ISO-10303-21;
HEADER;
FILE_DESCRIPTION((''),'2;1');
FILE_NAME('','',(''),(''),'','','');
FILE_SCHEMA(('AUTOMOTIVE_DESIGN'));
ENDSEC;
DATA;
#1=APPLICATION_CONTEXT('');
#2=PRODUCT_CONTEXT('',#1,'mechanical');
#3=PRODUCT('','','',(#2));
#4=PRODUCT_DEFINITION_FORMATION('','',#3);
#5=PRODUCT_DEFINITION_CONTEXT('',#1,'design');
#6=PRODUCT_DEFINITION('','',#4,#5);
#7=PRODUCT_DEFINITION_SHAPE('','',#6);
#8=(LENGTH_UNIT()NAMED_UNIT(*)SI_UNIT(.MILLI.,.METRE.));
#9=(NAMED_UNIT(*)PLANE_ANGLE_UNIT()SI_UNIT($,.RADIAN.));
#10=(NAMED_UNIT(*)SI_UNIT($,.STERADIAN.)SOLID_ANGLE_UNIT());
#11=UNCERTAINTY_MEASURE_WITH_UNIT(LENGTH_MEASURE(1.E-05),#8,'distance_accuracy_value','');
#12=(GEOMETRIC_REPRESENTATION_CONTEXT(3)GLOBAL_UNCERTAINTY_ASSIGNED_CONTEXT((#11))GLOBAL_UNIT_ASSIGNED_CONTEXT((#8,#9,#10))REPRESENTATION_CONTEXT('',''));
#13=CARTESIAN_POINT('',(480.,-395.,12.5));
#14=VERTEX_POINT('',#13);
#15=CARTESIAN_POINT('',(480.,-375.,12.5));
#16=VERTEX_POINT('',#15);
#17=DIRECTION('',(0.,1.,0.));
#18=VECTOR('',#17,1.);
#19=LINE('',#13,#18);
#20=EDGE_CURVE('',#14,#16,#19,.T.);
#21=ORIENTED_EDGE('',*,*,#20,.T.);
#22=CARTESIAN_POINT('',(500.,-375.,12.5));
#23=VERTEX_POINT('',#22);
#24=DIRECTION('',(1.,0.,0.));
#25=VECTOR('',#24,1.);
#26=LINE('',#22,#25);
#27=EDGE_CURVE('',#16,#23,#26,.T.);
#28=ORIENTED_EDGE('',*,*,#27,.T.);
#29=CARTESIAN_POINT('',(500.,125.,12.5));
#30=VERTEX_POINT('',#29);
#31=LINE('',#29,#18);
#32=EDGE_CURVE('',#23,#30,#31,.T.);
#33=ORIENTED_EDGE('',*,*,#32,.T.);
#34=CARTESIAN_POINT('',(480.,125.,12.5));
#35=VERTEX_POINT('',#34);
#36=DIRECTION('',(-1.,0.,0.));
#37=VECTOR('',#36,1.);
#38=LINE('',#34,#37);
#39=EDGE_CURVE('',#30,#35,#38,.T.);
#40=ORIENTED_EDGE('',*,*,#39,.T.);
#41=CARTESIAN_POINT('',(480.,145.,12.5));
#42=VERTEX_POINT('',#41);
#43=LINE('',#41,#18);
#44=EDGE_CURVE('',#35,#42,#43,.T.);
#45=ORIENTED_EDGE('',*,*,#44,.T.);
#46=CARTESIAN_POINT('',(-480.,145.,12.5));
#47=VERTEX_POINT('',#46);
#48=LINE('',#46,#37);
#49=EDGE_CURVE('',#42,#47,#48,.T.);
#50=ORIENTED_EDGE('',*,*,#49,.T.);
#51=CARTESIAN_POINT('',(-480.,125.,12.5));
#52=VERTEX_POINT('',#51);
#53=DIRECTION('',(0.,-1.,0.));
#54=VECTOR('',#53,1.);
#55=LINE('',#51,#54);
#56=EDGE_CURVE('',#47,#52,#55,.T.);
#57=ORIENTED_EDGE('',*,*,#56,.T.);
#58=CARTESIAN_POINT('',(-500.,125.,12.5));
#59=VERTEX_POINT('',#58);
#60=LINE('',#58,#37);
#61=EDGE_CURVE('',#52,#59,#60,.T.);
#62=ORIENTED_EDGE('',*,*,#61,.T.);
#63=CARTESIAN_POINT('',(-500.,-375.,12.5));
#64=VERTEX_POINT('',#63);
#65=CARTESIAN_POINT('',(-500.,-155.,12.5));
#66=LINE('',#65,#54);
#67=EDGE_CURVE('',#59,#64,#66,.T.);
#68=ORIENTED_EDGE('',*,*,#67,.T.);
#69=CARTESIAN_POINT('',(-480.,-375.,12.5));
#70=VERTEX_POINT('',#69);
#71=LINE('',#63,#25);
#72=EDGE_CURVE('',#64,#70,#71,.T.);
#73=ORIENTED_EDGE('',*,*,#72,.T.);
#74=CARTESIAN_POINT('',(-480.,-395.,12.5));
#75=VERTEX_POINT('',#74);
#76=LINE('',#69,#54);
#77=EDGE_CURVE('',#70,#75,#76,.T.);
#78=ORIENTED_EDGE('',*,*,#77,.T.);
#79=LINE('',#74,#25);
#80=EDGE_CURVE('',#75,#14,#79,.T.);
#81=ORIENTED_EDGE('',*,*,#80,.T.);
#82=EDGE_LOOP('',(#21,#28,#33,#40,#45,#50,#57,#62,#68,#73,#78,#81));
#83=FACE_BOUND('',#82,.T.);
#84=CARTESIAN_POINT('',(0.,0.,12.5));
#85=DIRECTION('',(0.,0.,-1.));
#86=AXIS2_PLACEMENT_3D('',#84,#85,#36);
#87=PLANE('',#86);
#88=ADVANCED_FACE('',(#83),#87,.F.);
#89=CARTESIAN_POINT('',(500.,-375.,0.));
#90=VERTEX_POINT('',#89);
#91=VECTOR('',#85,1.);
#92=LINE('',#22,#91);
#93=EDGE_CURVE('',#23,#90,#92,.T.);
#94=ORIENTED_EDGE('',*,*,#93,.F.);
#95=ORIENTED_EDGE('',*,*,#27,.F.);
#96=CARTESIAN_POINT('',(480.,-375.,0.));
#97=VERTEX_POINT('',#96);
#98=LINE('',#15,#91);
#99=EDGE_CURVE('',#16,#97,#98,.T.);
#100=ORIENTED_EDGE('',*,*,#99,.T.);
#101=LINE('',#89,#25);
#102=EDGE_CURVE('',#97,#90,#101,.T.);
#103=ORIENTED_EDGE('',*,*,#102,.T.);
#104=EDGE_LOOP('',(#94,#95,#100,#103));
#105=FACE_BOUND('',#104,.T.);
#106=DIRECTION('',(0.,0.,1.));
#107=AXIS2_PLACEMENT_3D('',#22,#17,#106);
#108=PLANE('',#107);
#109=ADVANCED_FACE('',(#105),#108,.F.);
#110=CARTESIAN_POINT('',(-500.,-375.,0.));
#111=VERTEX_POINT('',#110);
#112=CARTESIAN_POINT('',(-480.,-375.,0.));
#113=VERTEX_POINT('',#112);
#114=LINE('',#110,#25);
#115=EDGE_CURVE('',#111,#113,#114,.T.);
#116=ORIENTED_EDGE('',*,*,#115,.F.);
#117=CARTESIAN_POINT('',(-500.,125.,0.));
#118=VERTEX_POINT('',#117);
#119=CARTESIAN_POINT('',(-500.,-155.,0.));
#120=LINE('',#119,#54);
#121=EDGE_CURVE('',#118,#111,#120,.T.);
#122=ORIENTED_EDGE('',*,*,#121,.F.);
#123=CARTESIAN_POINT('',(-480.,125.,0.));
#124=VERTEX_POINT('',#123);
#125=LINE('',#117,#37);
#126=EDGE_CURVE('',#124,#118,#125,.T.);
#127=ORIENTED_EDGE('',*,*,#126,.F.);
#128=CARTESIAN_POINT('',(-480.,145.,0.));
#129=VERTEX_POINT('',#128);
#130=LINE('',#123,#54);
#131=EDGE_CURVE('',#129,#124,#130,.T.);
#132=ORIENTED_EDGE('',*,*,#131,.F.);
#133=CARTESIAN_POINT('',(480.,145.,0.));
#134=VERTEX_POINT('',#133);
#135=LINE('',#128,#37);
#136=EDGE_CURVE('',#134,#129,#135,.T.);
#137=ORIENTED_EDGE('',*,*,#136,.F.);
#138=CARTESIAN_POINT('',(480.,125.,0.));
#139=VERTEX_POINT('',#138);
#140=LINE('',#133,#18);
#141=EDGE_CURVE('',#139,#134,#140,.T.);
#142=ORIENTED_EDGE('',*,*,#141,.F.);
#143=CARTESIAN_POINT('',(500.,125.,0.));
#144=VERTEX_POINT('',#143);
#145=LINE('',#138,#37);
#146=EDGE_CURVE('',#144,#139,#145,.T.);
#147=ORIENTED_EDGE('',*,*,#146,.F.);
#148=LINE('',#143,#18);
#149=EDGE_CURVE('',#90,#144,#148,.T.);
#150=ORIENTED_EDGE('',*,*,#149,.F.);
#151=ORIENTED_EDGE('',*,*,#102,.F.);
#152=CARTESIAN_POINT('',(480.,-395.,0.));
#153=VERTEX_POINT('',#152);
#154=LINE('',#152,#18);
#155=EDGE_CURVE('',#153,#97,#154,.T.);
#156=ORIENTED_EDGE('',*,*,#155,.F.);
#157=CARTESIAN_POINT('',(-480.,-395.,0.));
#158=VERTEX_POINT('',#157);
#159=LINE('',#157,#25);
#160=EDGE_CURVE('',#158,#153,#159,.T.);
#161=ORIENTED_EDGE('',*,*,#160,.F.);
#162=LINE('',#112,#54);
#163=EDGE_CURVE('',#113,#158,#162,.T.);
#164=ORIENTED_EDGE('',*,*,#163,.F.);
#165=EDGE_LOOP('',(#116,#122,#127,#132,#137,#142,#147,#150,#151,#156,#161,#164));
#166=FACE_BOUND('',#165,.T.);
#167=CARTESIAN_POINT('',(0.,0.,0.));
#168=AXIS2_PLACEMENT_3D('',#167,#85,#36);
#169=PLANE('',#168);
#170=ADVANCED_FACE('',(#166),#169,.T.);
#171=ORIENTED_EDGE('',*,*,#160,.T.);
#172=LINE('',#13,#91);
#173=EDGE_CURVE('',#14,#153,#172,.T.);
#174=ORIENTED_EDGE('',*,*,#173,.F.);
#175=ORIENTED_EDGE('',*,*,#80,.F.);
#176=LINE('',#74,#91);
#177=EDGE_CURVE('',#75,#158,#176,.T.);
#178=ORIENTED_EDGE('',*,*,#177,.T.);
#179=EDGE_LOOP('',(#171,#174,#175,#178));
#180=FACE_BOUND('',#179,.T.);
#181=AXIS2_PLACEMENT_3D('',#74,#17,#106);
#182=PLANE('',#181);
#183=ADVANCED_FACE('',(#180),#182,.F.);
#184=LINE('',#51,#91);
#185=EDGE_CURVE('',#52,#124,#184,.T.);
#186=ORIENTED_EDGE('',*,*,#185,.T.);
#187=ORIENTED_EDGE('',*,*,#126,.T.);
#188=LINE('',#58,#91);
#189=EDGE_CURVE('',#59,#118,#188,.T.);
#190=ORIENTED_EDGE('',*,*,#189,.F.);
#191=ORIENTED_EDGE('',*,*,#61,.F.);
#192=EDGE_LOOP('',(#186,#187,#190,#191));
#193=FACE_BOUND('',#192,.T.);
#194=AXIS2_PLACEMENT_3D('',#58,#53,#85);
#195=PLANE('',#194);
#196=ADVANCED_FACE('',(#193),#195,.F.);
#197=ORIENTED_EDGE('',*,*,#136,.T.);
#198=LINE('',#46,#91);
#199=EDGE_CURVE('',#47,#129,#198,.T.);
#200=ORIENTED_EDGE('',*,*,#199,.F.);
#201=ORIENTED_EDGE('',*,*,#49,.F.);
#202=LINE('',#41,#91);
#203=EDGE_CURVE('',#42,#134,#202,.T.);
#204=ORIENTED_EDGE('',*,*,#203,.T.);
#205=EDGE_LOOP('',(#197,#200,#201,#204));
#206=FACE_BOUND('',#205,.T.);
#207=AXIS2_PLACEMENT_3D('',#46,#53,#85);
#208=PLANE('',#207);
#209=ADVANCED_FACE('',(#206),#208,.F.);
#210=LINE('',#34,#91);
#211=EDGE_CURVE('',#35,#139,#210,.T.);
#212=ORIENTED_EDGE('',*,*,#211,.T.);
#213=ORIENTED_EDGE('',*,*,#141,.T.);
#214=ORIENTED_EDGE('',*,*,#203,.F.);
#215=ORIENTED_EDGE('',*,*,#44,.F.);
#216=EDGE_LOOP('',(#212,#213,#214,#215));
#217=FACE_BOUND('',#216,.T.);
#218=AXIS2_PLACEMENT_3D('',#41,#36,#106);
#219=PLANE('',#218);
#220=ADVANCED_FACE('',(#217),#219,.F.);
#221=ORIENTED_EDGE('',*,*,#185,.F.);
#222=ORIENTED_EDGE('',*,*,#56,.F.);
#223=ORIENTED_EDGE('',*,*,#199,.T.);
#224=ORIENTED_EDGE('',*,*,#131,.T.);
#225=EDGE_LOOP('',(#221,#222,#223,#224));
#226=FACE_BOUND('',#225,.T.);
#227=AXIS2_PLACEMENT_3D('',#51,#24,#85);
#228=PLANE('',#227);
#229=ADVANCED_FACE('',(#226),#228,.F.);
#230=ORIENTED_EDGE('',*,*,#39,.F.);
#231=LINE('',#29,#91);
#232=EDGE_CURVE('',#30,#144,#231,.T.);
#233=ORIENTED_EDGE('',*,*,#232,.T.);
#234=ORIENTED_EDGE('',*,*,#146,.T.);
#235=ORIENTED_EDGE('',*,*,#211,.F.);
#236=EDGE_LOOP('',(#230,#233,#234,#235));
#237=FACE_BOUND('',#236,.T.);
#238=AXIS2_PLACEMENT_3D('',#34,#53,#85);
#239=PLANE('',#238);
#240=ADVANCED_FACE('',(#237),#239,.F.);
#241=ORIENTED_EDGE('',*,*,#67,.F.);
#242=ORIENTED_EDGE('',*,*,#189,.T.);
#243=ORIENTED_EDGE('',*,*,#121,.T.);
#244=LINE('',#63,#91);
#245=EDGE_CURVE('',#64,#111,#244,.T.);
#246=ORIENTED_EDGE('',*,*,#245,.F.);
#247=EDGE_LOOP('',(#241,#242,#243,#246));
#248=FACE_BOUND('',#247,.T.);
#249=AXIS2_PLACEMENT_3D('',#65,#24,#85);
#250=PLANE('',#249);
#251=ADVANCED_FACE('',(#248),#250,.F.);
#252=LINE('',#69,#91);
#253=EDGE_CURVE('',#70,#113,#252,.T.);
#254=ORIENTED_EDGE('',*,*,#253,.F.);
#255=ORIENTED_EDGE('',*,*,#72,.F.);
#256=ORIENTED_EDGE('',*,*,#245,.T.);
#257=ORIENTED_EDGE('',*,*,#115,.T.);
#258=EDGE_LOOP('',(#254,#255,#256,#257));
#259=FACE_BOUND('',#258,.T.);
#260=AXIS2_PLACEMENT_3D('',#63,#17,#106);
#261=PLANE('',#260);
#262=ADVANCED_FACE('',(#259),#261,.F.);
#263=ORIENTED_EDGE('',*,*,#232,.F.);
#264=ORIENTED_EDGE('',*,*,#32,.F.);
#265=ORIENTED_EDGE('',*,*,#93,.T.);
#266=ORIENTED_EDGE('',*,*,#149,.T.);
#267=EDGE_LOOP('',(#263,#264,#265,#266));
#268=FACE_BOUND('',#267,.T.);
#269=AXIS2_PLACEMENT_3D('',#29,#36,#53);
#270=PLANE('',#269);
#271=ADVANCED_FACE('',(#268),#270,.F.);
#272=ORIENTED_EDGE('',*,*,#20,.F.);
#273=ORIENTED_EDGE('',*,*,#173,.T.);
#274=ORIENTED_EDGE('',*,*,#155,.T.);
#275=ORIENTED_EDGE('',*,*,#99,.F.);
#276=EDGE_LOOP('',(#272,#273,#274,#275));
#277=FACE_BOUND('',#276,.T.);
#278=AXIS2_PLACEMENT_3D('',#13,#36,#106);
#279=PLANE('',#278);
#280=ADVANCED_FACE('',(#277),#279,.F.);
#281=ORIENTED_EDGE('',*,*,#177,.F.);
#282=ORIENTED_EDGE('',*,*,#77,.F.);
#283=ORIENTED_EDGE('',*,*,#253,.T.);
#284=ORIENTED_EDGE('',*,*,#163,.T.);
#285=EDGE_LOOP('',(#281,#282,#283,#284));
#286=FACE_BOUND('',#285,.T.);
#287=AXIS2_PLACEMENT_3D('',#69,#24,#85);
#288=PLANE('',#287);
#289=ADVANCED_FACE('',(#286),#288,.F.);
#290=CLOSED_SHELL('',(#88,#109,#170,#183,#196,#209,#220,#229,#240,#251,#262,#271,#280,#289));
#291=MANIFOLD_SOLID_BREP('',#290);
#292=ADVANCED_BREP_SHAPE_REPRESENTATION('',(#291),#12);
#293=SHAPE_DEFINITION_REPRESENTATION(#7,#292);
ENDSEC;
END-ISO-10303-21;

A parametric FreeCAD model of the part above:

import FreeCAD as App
import Part
import Sketcher

doc = App.newDocument("Part")
params = doc.addObject("Spreadsheet::Sheet", "Params")
for row, (alias, value) in enumerate([
    ("sketch1_width", "20 mm"),
    ("sketch1_width2", "960 mm"),
    ("sketch1_height", "500 mm"),
    ("pad1_length", "12.5 mm"),
], start=1):
    params.set(f"A{row}", alias)
    params.set(f"B{row}", "=" + value)
    params.setAlias(f"B{row}", alias)

body = doc.addObject("PartDesign::Body", "Body")

sketch1 = body.newObject("Sketcher::SketchObject", "Sketch")
sketch1.AttachmentSupport = (doc.getObject("XY_Plane"), [""])
sketch1.MapMode = "FlatFace"
sketch1.addGeometry(Part.LineSegment(App.Vector(-480, 125, 0), App.Vector(-500, 125, 0)), False)
sketch1.addGeometry(Part.LineSegment(App.Vector(-500, 125, 0), App.Vector(-500, -375, 0)), False)
sketch1.addGeometry(Part.LineSegment(App.Vector(-500, -375, 0), App.Vector(-480, -375, 0)), False)
sketch1.addGeometry(Part.LineSegment(App.Vector(-480, -375, 0), App.Vector(-480, -395, 0)), False)
sketch1.addGeometry(Part.LineSegment(App.Vector(-480, -395, 0), App.Vector(480, -395, 0)), False)
sketch1.addGeometry(Part.LineSegment(App.Vector(480, -395, 0), App.Vector(480, -375, 0)), False)
sketch1.addGeometry(Part.LineSegment(App.Vector(480, -375, 0), App.Vector(500, -375, 0)), False)
sketch1.addGeometry(Part.LineSegment(App.Vector(500, -375, 0), App.Vector(500, 125, 0)), False)
sketch1.addGeometry(Part.LineSegment(App.Vector(500, 125, 0), App.Vector(480, 125, 0)), False)
sketch1.addGeometry(Part.LineSegment(App.Vector(480, 125, 0), App.Vector(480, 145, 0)), False)
sketch1.addGeometry(Part.LineSegment(App.Vector(480, 145, 0), App.Vector(-480, 145, 0)), False)
sketch1.addGeometry(Part.LineSegment(App.Vector(-480, 145, 0), App.Vector(-480, 125, 0)), False)
sketch1.addConstraint(Sketcher.Constraint("Coincident", 0, 2, 1, 1))
sketch1.addConstraint(Sketcher.Constraint("Coincident", 1, 2, 2, 1))
sketch1.addConstraint(Sketcher.Constraint("Coincident", 2, 2, 3, 1))
sketch1.addConstraint(Sketcher.Constraint("Coincident", 3, 2, 4, 1))
sketch1.addConstraint(Sketcher.Constraint("Coincident", 4, 2, 5, 1))
sketch1.addConstraint(Sketcher.Constraint("Coincident", 5, 2, 6, 1))
sketch1.addConstraint(Sketcher.Constraint("Coincident", 6, 2, 7, 1))
sketch1.addConstraint(Sketcher.Constraint("Coincident", 7, 2, 8, 1))
sketch1.addConstraint(Sketcher.Constraint("Coincident", 8, 2, 9, 1))
sketch1.addConstraint(Sketcher.Constraint("Coincident", 9, 2, 10, 1))
sketch1.addConstraint(Sketcher.Constraint("Coincident", 10, 2, 11, 1))
sketch1.addConstraint(Sketcher.Constraint("Coincident", 11, 2, 0, 1))
sketch1.addConstraint(Sketcher.Constraint("Horizontal", 0))
sketch1.addConstraint(Sketcher.Constraint("Vertical", 1))
sketch1.addConstraint(Sketcher.Constraint("Horizontal", 2))
sketch1.addConstraint(Sketcher.Constraint("Vertical", 3))
sketch1.addConstraint(Sketcher.Constraint("Horizontal", 4))
sketch1.addConstraint(Sketcher.Constraint("Vertical", 5))
sketch1.addConstraint(Sketcher.Constraint("Horizontal", 6))
sketch1.addConstraint(Sketcher.Constraint("Vertical", 7))
sketch1.addConstraint(Sketcher.Constraint("Horizontal", 8))
sketch1.addConstraint(Sketcher.Constraint("Vertical", 9))
sketch1.addConstraint(Sketcher.Constraint("Horizontal", 10))
sketch1.addConstraint(Sketcher.Constraint("Vertical", 11))
sketch1.addConstraint(Sketcher.Constraint("Symmetric", 2, 2, 5, 2, -2))
sketch1.addConstraint(Sketcher.Constraint("Symmetric", 0, 2, 7, 2, -2))
sketch1.addConstraint(Sketcher.Constraint("Vertical", 5, 2, 8, 2))
sketch1.addConstraint(Sketcher.Constraint("Vertical", 3, 2, 10, 2))
sketch1.addConstraint(Sketcher.Constraint("Equal", 8, 3))
sketch1.addConstraint(Sketcher.Constraint("Equal", 5, 9))
sketch1.addConstraint(Sketcher.Constraint("DistanceX", 0, 2, 0, 1, 20.0))
sketch1.addConstraint(Sketcher.Constraint("DistanceX", 4, 1, 4, 2, 960.0))
sketch1.addConstraint(Sketcher.Constraint("DistanceY", 1, 2, 1, 1, 500.0))
sketch1.addConstraint(Sketcher.Constraint("DistanceY", -1, 1, 0, 2, 125.0))
sketch1.setExpression("Constraints[30]", "Params.sketch1_width")
sketch1.setExpression("Constraints[31]", "Params.sketch1_width2")
sketch1.setExpression("Constraints[32]", "Params.sketch1_height")
pad1 = body.newObject("PartDesign::Pad", "Pad")
pad1.Profile = sketch1
pad1.setExpression("Length", "Params.pad1_length")

doc.recompute()
